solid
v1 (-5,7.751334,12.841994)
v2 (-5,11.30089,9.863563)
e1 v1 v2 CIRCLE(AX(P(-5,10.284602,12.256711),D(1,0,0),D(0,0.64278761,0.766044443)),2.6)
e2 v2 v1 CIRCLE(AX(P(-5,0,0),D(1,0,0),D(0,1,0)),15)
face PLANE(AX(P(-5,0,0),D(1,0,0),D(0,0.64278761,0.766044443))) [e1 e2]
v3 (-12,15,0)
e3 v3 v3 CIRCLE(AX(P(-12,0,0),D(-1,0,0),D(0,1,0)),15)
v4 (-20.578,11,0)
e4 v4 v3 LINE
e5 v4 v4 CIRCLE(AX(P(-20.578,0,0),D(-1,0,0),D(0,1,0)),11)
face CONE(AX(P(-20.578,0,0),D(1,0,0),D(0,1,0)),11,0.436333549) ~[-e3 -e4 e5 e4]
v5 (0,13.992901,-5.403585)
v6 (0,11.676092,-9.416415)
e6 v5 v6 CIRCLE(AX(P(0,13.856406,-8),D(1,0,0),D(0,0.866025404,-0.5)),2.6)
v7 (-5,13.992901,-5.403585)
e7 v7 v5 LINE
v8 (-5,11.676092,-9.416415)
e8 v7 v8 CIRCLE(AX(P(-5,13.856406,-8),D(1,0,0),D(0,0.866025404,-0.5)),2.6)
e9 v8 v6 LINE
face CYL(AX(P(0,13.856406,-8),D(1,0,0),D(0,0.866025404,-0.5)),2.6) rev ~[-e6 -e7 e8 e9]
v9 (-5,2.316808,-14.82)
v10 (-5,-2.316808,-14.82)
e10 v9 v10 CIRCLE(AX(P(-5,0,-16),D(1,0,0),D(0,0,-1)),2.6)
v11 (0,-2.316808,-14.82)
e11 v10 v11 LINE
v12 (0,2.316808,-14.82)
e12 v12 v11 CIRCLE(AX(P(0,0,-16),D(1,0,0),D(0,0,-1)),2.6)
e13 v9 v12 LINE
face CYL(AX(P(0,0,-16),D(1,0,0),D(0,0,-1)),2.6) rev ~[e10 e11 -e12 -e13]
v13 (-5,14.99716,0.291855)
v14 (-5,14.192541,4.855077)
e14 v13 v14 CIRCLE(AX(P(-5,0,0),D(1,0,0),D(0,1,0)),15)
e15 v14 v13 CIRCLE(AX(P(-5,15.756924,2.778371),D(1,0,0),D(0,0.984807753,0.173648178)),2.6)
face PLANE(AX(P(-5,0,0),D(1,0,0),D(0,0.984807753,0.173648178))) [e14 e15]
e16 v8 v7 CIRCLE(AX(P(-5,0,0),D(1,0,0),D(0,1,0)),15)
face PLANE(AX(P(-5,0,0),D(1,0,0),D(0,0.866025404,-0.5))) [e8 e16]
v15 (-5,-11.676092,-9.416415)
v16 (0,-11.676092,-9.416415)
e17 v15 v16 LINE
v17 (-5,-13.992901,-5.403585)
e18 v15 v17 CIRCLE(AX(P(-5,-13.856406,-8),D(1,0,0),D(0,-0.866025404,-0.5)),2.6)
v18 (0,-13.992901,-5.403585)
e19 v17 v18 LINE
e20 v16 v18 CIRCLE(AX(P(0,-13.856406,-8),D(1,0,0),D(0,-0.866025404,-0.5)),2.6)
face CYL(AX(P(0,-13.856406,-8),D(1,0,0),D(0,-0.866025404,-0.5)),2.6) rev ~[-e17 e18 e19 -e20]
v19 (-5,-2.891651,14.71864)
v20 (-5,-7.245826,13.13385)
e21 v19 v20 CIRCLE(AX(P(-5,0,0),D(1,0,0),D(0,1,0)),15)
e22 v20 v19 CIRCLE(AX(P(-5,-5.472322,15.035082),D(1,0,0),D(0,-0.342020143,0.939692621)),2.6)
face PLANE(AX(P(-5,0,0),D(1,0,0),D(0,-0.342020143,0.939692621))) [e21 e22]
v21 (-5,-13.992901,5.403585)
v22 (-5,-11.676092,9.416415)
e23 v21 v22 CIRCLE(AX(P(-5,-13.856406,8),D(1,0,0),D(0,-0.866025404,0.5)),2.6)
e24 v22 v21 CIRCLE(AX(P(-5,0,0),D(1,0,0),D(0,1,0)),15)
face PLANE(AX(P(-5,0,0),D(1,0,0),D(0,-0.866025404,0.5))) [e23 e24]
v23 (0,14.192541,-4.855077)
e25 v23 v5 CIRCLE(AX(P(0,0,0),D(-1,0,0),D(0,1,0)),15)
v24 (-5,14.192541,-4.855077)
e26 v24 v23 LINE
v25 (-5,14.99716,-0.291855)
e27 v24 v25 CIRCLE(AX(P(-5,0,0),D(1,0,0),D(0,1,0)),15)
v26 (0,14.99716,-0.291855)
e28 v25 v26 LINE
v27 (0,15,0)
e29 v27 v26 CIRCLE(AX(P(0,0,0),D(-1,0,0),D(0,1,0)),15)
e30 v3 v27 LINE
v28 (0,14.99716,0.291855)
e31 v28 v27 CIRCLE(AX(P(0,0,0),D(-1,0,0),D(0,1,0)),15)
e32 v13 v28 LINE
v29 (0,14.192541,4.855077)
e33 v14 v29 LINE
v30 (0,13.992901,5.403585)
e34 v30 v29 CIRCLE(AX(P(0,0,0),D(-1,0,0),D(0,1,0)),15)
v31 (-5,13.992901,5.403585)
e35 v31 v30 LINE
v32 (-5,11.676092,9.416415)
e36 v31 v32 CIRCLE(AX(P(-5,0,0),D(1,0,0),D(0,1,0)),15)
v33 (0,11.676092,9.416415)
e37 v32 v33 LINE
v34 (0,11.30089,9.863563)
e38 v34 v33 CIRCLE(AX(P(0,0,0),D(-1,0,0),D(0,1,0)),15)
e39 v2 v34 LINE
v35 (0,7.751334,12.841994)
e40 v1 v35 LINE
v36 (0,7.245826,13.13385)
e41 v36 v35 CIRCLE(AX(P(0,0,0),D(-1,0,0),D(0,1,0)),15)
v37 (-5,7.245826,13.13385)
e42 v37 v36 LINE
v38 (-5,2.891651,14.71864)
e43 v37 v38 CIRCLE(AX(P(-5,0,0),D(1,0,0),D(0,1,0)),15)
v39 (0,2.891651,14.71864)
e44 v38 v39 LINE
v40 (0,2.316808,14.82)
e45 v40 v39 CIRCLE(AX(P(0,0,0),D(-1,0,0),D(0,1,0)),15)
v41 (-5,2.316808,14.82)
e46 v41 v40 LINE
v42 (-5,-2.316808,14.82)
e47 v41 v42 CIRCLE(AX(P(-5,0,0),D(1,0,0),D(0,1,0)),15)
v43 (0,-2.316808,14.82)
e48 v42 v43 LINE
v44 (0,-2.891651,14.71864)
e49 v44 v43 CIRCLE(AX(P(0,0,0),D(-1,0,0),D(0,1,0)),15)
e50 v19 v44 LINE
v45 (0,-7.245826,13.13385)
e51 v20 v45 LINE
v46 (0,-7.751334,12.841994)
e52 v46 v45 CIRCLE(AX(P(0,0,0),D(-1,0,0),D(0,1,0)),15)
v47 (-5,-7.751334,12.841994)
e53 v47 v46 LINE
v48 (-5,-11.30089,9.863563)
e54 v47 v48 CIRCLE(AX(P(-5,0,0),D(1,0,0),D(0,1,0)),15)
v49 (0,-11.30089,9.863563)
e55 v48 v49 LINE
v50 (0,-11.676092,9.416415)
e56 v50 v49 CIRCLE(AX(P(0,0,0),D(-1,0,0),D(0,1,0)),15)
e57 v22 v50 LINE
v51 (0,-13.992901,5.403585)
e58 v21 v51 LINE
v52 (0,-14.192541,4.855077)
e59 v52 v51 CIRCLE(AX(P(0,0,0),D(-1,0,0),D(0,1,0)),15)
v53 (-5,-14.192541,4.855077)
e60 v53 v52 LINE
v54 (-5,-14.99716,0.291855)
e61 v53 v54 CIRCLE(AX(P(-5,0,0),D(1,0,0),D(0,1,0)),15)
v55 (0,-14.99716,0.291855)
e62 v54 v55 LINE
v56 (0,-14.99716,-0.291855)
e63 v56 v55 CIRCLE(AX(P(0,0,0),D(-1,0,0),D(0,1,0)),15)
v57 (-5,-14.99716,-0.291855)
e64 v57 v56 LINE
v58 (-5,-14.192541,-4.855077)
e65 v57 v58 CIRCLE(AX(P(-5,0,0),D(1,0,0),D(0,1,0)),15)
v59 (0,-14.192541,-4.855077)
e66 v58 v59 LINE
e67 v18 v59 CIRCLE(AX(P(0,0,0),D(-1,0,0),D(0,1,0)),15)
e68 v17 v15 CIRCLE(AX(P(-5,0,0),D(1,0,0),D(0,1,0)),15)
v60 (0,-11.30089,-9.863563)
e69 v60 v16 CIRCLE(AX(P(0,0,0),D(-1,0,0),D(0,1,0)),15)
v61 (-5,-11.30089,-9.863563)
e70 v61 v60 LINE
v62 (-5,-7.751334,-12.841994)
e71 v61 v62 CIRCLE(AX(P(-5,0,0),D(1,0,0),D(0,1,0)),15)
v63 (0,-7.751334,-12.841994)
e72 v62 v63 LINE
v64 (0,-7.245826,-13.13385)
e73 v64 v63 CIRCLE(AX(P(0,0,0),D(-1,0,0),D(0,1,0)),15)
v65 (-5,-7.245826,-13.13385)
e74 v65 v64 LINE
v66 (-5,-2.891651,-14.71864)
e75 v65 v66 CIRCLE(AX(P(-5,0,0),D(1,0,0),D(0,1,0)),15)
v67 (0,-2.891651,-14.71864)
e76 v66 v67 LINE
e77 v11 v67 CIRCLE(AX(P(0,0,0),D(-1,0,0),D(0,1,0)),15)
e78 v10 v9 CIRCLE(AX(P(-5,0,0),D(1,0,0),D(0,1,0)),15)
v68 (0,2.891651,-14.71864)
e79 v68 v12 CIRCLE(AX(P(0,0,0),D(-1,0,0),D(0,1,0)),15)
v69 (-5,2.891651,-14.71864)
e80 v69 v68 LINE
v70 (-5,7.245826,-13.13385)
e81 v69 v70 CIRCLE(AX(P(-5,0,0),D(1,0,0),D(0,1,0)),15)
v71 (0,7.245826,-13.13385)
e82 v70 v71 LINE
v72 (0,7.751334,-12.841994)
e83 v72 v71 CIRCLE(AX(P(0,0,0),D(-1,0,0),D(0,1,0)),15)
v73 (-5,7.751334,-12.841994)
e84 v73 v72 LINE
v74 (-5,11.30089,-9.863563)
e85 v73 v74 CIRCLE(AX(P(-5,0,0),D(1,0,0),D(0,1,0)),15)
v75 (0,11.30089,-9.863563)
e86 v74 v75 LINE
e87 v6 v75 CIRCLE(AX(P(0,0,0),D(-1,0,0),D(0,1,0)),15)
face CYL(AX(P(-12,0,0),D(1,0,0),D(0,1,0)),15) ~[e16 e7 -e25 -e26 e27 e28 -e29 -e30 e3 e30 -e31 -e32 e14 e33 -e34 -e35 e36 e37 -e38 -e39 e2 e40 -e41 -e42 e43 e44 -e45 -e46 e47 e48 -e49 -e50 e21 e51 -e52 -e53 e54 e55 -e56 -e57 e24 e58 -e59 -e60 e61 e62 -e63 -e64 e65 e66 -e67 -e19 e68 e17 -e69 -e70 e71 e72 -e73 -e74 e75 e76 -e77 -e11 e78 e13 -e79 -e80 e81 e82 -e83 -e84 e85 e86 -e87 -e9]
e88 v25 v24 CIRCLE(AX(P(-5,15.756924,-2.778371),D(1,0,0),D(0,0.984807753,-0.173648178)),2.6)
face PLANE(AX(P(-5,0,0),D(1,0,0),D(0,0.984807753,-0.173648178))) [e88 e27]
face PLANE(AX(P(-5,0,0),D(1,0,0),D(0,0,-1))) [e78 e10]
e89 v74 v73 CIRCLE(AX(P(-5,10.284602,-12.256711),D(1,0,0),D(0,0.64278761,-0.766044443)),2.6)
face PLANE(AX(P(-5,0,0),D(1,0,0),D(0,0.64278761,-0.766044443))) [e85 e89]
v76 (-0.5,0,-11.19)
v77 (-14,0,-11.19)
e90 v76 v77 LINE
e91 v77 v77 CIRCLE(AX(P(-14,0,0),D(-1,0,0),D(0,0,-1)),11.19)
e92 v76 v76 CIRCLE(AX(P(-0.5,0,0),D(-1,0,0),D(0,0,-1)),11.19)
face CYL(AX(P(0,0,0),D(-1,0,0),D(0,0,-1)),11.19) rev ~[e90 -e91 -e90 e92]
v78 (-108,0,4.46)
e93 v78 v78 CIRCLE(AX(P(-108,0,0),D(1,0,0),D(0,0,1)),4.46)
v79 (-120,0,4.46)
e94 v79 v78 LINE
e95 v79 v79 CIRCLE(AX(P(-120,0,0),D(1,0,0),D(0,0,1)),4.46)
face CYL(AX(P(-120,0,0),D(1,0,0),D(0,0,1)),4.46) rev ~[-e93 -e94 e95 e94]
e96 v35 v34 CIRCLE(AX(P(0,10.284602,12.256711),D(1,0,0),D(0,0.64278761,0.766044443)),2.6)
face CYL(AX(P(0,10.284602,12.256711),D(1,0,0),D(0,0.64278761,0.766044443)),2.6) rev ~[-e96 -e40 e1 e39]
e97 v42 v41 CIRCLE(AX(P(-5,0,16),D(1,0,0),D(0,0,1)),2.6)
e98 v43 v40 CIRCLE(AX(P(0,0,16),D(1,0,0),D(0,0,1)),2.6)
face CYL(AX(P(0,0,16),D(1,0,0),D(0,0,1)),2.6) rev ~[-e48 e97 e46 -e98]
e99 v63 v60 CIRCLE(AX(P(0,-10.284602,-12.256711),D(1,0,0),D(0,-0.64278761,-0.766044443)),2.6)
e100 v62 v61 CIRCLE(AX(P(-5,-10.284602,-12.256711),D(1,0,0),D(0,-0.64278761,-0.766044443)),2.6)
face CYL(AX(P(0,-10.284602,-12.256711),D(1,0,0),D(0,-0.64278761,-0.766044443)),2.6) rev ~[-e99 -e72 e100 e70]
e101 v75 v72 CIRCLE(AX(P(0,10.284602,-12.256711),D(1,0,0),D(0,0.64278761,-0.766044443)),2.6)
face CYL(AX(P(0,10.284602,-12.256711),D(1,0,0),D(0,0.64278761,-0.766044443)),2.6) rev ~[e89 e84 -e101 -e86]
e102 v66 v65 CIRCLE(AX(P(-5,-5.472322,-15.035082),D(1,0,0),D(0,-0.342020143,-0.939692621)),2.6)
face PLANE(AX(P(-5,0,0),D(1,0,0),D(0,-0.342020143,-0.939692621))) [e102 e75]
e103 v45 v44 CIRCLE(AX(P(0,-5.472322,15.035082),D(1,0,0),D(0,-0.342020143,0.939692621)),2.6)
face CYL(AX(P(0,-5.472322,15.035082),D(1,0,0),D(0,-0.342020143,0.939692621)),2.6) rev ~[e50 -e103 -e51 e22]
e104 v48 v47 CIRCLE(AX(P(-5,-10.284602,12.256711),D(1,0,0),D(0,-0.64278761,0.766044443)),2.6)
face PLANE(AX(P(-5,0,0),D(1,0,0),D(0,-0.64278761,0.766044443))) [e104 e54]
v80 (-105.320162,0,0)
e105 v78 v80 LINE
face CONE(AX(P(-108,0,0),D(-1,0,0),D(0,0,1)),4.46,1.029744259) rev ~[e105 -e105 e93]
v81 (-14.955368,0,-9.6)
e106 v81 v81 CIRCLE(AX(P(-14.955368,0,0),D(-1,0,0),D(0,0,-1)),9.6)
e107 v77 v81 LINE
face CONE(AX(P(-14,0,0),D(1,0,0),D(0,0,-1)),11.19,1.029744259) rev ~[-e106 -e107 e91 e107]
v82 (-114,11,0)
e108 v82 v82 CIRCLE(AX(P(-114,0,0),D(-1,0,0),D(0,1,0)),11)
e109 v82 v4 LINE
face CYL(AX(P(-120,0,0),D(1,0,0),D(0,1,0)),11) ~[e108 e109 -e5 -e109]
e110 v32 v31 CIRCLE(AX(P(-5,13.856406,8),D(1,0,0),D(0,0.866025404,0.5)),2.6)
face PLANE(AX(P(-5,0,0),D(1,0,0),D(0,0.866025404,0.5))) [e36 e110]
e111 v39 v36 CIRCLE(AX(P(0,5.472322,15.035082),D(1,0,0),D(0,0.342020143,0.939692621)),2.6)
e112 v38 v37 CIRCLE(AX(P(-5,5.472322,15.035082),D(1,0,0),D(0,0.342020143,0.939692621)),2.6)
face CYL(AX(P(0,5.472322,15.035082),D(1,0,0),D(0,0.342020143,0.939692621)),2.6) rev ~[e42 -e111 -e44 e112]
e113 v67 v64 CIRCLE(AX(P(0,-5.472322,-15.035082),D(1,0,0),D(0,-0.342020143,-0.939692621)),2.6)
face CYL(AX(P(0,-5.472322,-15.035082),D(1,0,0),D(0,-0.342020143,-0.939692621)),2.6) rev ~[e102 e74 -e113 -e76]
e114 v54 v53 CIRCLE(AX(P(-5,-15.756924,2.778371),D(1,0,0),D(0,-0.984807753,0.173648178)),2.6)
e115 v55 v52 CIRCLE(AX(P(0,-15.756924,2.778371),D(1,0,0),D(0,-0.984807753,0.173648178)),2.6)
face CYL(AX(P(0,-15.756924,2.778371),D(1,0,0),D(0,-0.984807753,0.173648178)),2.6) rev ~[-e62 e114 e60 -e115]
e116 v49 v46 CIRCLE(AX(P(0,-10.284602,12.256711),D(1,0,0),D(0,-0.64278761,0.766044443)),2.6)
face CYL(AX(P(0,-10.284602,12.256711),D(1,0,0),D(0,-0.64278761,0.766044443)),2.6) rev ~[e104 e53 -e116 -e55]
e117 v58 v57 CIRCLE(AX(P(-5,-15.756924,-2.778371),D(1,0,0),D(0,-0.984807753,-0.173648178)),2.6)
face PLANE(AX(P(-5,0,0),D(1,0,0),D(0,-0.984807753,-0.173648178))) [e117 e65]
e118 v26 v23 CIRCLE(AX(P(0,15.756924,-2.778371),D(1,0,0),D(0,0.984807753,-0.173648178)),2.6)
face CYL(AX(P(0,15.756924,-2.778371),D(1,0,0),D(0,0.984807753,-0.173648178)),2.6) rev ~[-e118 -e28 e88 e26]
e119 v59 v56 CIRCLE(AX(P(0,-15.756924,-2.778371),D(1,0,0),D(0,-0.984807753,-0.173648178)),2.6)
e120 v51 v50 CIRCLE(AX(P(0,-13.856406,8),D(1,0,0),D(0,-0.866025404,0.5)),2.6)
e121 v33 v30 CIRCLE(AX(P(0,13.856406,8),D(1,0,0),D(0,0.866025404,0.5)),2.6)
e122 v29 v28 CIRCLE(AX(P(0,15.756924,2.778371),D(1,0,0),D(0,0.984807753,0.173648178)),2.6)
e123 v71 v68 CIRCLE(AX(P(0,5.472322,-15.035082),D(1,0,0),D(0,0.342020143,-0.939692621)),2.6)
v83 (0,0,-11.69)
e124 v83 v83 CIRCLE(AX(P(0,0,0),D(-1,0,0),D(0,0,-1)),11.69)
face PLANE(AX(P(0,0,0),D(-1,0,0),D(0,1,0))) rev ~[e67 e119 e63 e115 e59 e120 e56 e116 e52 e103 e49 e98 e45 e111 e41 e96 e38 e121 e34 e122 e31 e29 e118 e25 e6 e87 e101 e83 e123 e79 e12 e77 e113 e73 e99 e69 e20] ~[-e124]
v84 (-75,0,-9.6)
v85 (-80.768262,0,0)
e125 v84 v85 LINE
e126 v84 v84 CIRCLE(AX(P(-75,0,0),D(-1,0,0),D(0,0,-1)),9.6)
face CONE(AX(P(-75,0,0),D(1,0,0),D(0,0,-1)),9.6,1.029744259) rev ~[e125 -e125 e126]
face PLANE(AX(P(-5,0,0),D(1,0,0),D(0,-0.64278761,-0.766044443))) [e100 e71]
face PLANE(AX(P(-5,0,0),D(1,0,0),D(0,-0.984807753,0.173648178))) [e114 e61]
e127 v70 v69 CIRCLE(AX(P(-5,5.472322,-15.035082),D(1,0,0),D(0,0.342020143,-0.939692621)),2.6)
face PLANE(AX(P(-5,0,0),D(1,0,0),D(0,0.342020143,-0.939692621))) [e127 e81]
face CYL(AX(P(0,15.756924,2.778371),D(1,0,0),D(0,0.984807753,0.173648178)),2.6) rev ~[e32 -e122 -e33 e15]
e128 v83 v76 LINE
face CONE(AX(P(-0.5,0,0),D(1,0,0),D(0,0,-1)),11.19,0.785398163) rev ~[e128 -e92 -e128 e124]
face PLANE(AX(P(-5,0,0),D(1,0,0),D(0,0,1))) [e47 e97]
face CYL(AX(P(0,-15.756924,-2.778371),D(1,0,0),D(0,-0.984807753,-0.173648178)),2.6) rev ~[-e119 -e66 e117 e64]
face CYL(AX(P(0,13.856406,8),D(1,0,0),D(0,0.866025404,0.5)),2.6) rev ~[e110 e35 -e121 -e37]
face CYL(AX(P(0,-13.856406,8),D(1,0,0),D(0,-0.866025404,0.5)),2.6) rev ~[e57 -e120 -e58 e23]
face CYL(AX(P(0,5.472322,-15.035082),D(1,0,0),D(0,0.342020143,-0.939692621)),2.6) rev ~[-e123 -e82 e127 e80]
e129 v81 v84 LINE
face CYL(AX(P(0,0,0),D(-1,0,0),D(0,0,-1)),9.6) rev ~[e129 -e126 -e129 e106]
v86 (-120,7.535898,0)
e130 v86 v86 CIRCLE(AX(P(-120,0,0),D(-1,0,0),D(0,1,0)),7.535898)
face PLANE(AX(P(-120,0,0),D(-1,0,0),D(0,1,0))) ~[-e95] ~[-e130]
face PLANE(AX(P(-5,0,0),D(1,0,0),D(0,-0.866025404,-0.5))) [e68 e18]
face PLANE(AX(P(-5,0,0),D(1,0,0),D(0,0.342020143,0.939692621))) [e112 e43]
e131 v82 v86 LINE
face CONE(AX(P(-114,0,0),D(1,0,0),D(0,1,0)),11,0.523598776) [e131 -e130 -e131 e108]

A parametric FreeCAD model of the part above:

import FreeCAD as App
import Part
import Sketcher
from FreeCAD import Vector
Q = App.Units.Quantity


def edges_at(feature, points):
    """Names of the edges that pass closest to the given points."""
    edges = feature.Shape.Edges
    near = lambda p: min(range(len(edges)), key=lambda i: edges[i].distToShape(Part.Vertex(*p))[0])
    return sorted({f"Edge{near(p) + 1}" for p in points})


def add_polygon(sketch, points):
    """Adds a closed chain of lines whose ends are joined by coincident constraints."""
    first, n = sketch.GeometryCount, len(points)
    for a, b in zip(points, points[1:] + points[:1]):
        sketch.addGeometry(Part.LineSegment(App.Vector(*a, 0), App.Vector(*b, 0)), False)
    for i in range(n):
        sketch.addConstraint(Sketcher.Constraint("Coincident", first + i, 2, first + (i + 1) % n, 1))

doc = App.newDocument("Part")
body = doc.addObject("PartDesign::Body", "Body")

# Sketch on XY plane
sketch1 = body.newObject("Sketcher::SketchObject", "Sketch")
sketch1.AttachmentSupport = (doc.getObject("XY_Plane"), [""])
sketch1.MapMode = "FlatFace"
add_polygon(sketch1, [(-120, 0), (0, 0), (0, 15), (-12, 15), (-20.578, 11), (-120, 11)])  # lines 0-5
sketch1.addConstraint(Sketcher.Constraint("Horizontal", 0))
sketch1.addConstraint(Sketcher.Constraint("Vertical", 1))
sketch1.addConstraint(Sketcher.Constraint("Horizontal", 2))
sketch1.addConstraint(Sketcher.Constraint("Horizontal", 4))
sketch1.addConstraint(Sketcher.Constraint("Vertical", 5))
sketch1.addConstraint(Sketcher.Constraint("Coincident", 0, 2, -1, 1))
sketch1.addConstraint(Sketcher.Constraint("DistanceX", 0, 1, 0, 2, 120.0))
sketch1.addConstraint(Sketcher.Constraint("DistanceX", 2, 2, 2, 1, 12.0))
sketch1.addConstraint(Sketcher.Constraint("DistanceY", 1, 1, 1, 2, 15.0))
sketch1.addConstraint(Sketcher.Constraint("DistanceY", 5, 2, 5, 1, 11.0))
sketch1.addConstraint(Sketcher.Constraint("Angle", 3, Q("-155 deg")))
revolution = body.newObject("PartDesign::Revolution", "Revolution")
revolution.Profile = sketch1
revolution.ReferenceAxis = (sketch1, ["H_Axis"])
revolution.Angle = 360

# Sketch on YZ plane
sketch2 = body.newObject("Sketcher::SketchObject", "Sketch001")
sketch2.AttachmentSupport = (doc.getObject("YZ_Plane"), [""])
sketch2.MapMode = "FlatFace"
sketch2.addGeometry(Part.Circle(Vector(0, 0, 0), Vector(0, 0, 1), 11.19), False)
sketch2.addConstraint(Sketcher.Constraint("Coincident", 0, 3, -1, 1))
sketch2.addConstraint(Sketcher.Constraint("Diameter", 0, 22.38))
doc.recompute()
hole = body.newObject("PartDesign::Hole", "Hole")
hole.Profile = sketch2
hole.ThreadType = "None"
hole.Diameter = 22.38
hole.DepthType = "Dimension"
hole.Depth = 14
hole.DrillPoint = "Angled"
hole.DrillPointAngle = 118

# Sketch on YZ plane
sketch3 = body.newObject("Sketcher::SketchObject", "Sketch002")
sketch3.AttachmentSupport = (doc.getObject("YZ_Plane"), [""])
sketch3.MapMode = "FlatFace"
sketch3.addGeometry(Part.Circle(Vector(0, 0, 0), Vector(0, 0, 1), 9.6), False)
sketch3.addConstraint(Sketcher.Constraint("Coincident", 0, 3, -1, 1))
sketch3.addConstraint(Sketcher.Constraint("Diameter", 0, 19.2))
doc.recompute()
hole2 = body.newObject("PartDesign::Hole", "Hole001")
hole2.Profile = sketch3
hole2.ThreadType = "None"
hole2.Diameter = 19.2
hole2.DepthType = "Dimension"
hole2.Depth = 75
hole2.DrillPoint = "Angled"
hole2.DrillPointAngle = 118

# Sketch on YZ plane
sketch4 = body.newObject("Sketcher::SketchObject", "Sketch003")
sketch4.AttachmentSupport = (doc.getObject("YZ_Plane"), [""])
sketch4.MapMode = "FlatFace"
sketch4.AttachmentOffset = App.Placement(Vector(0, 0, -120), App.Rotation())
sketch4.addGeometry(Part.Circle(Vector(0, 0, 0), Vector(0, 0, 1), 4.46), False)
sketch4.addConstraint(Sketcher.Constraint("Coincident", 0, 3, -1, 1))
sketch4.addConstraint(Sketcher.Constraint("Diameter", 0, 8.92))
doc.recompute()
hole3 = body.newObject("PartDesign::Hole", "Hole002")
hole3.Profile = sketch4
hole3.ThreadType = "None"
hole3.Diameter = 8.92
hole3.DepthType = "Dimension"
hole3.Depth = 12
hole3.DrillPoint = "Angled"
hole3.DrillPointAngle = 118
hole3.Reversed = True
doc.recompute()

chamfer = body.newObject("PartDesign::Chamfer", "Chamfer")
chamfer.Base = (hole3, edges_at(hole3, [(-120, -11, 0)]))
chamfer.ChamferType = "Distance and Angle"
chamfer.Size = 6
chamfer.Angle = 30

# Sketch on YZ plane
sketch5 = body.newObject("Sketcher::SketchObject", "Sketch004")
sketch5.AttachmentSupport = (doc.getObject("YZ_Plane"), [""])
sketch5.MapMode = "FlatFace"
sketch5.addGeometry(Part.Circle(Vector(0, -16, 0), Vector(0, 0, 1), 2.6), False)
sketch5.addConstraint(Sketcher.Constraint("PointOnObject", 0, 3, -2))
sketch5.addConstraint(Sketcher.Constraint("Diameter", 0, 5.2))
sketch5.addConstraint(Sketcher.Constraint("DistanceY", 0, 3, -1, 1, 16.0))
pocket1 = body.newObject("PartDesign::Pocket", "Pocket")
pocket1.Profile = sketch5
pocket1.Length = 5
doc.recompute()

polarpattern = body.newObject("PartDesign::PolarPattern", "PolarPattern")
polarpattern.Originals = [pocket1]
polarpattern.Axis = (doc.getObject("X_Axis"), [""])
polarpattern.Angle = 360
polarpattern.Occurrences = 18
body.Tip = polarpattern
doc.recompute()

chamfer2 = body.newObject("PartDesign::Chamfer", "Chamfer001")
chamfer2.Base = (polarpattern, edges_at(polarpattern, [(0, 0, 11.19)]))
chamfer2.Size = 0.5

doc.recompute()
